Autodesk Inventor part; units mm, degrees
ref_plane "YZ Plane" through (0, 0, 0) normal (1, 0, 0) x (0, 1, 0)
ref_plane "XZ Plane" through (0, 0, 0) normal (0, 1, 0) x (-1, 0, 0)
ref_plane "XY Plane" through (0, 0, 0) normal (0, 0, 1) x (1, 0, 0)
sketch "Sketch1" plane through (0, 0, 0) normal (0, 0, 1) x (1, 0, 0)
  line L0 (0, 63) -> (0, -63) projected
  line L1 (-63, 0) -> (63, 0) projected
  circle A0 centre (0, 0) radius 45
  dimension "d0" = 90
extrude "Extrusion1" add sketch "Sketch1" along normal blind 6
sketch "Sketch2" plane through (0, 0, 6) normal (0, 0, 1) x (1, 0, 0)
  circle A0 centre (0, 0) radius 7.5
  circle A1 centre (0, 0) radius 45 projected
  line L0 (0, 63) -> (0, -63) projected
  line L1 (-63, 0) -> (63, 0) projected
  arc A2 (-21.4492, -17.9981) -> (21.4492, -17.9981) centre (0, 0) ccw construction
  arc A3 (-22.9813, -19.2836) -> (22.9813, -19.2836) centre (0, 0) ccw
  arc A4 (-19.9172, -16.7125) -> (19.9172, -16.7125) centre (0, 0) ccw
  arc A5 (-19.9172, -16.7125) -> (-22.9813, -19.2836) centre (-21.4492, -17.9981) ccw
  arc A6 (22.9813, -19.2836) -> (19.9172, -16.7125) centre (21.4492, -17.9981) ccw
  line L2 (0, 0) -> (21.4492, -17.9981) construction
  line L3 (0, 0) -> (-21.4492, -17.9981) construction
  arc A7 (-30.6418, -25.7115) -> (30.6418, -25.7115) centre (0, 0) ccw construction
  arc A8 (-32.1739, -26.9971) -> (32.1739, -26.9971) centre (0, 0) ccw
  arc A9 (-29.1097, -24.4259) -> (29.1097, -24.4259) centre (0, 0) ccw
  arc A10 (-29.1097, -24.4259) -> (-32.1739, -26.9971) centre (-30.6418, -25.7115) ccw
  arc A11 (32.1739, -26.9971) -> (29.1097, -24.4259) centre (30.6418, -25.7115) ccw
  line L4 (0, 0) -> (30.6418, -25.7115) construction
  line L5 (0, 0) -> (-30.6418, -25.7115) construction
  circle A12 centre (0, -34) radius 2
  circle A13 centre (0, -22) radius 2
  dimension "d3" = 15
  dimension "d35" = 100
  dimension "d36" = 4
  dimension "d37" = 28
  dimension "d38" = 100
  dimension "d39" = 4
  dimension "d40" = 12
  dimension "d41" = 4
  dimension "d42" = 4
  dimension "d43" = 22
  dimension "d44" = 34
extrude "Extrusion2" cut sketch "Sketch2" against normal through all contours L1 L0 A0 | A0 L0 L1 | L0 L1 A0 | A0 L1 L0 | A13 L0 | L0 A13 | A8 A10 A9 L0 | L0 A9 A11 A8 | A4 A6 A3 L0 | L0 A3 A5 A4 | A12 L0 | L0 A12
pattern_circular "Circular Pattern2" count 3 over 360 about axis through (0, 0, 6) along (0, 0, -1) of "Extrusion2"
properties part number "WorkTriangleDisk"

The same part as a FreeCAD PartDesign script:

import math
import FreeCAD as App
import Part
import Sketcher

V = App.Vector

doc = App.newDocument("Part")
body = doc.addObject("PartDesign::Body", "Body")

# Sketch on XY plane
sketch1 = doc.addObject("Sketcher::SketchObject", "Sketch")
body.addObject(sketch1)
sketch1.AttachmentSupport = (doc.XY_Plane, [""])
sketch1.MapMode = "FlatFace"
sketch1.addGeometry(Part.Circle(V(0, 0, 0), V(0, 0, 1), 45), False)
sketch1.addConstraint(Sketcher.Constraint("Coincident", 0, 3, -1, 1))
sketch1.addConstraint(Sketcher.Constraint("Diameter", 0, 90.0))
pad1 = doc.addObject("PartDesign::Pad", "Pad")
body.addObject(pad1)
pad1.Profile = sketch1
pad1.Length = 6

# Sketch on XY plane
sketch2 = doc.addObject("Sketcher::SketchObject", "Sketch001")
body.addObject(sketch2)
sketch2.AttachmentSupport = (doc.XY_Plane, [""])
sketch2.MapMode = "FlatFace"
sketch2.AttachmentOffset = App.Placement(V(0, 0, 6), App.Rotation())
sketch2.addGeometry(Part.Circle(V(0, 0, 0), V(0, 0, 1), 7.5), False)
sketch2.addGeometry(Part.Circle(V(0, -22, 0), V(0, 0, 1), 2), False)
sketch2.addGeometry(Part.ArcOfCircle(Part.Circle(V(0, 0, 0), V(0, 0, 1), 42), math.radians(-140), math.radians(-40)), False)
sketch2.addGeometry(Part.ArcOfCircle(Part.Circle(V(30.6, -25.7, 0), V(0, 0, 1), 2), math.radians(-40), math.radians(140)), False)
sketch2.addGeometry(Part.ArcOfCircle(Part.Circle(V(0, 0, 0), V(0, 0, 1), 38), math.radians(-140), math.radians(-40)), False)
sketch2.addGeometry(Part.ArcOfCircle(Part.Circle(V(-30.6, -25.7, 0), V(0, 0, 1), 2), math.radians(40), math.radians(220)), False)
sketch2.addGeometry(Part.ArcOfCircle(Part.Circle(V(0, 0, 0), V(0, 0, 1), 26), math.radians(-140), math.radians(-40)), False)
sketch2.addGeometry(Part.ArcOfCircle(Part.Circle(V(-21.4, -18, 0), V(0, 0, 1), 2), math.radians(40), math.radians(220)), False)
sketch2.addGeometry(Part.ArcOfCircle(Part.Circle(V(0, 0, 0), V(0, 0, 1), 30), math.radians(-140), math.radians(-40)), False)
sketch2.addGeometry(Part.ArcOfCircle(Part.Circle(V(21.4, -18, 0), V(0, 0, 1), 2), math.radians(-40), math.radians(140)), False)
sketch2.addGeometry(Part.Circle(V(0, -34, 0), V(0, 0, 1), 2), False)
sketch2.addConstraint(Sketcher.Constraint("Tangent", 2, 2, 3, 1))
sketch2.addConstraint(Sketcher.Constraint("Tangent", 3, 2, 4, 2))
sketch2.addConstraint(Sketcher.Constraint("Tangent", 4, 1, 5, 1))
sketch2.addConstraint(Sketcher.Constraint("Tangent", 5, 2, 2, 1))
sketch2.addConstraint(Sketcher.Constraint("Tangent", 6, 1, 7, 1))
sketch2.addConstraint(Sketcher.Constraint("Tangent", 7, 2, 8, 1))
sketch2.addConstraint(Sketcher.Constraint("Tangent", 8, 2, 9, 1))
sketch2.addConstraint(Sketcher.Constraint("Tangent", 9, 2, 6, 2))
sketch2.addConstraint(Sketcher.Constraint("Coincident", 0, 3, -1, 1))
sketch2.addConstraint(Sketcher.Constraint("Coincident", 2, 3, -1, 1))
sketch2.addConstraint(Sketcher.Constraint("Coincident", 4, 3, -1, 1))
sketch2.addConstraint(Sketcher.Constraint("Coincident", 6, 3, -1, 1))
sketch2.addConstraint(Sketcher.Constraint("Coincident", 8, 3, -1, 1))
sketch2.addConstraint(Sketcher.Constraint("Equal", 1, 3))
sketch2.addConstraint(Sketcher.Constraint("Equal", 5, 7))
sketch2.addConstraint(Sketcher.Constraint("Equal", 9, 10))
sketch2.addConstraint(Sketcher.Constraint("PointOnObject", 1, 3, -2))
sketch2.addConstraint(Sketcher.Constraint("PointOnObject", 10, 3, -2))
sketch2.addConstraint(Sketcher.Constraint("Horizontal", 3, 3, 5, 3))
sketch2.addConstraint(Sketcher.Constraint("Horizontal", 7, 3, 9, 3))
sketch2.addConstraint(Sketcher.Constraint("Diameter", 0, 15.0))
sketch2.addConstraint(Sketcher.Constraint("Diameter", 1, 4.0))
sketch2.addConstraint(Sketcher.Constraint("DistanceY", 1, 3, -1, 1, 22.0))
sketch2.addConstraint(Sketcher.Constraint("DistanceY", 10, 3, -1, 1, 34.0))
sketch2.addConstraint(Sketcher.Constraint("Radius", 2, 42.0))
sketch2.addConstraint(Sketcher.Constraint("Radius", 6, 26.0))
sketch2.addConstraint(Sketcher.Constraint("DistanceY", 7, 3, -1, 1, 17.998))
sketch2.addConstraint(Sketcher.Constraint("DistanceX", -1, 1, 2, 2, 32.174))
pocket1 = doc.addObject("PartDesign::Pocket", "Pocket")
body.addObject(pocket1)
pocket1.Profile = sketch2
pocket1.Type = "ThroughAll"
doc.recompute()

polarpattern = doc.addObject("PartDesign::PolarPattern", "PolarPattern")
body.addObject(polarpattern)
polarpattern.Originals = [pocket1]
polarpattern.Axis = (doc.Z_Axis, [""])
polarpattern.Angle = 360
polarpattern.Occurrences = 3
body.Tip = polarpattern

doc.recompute()
